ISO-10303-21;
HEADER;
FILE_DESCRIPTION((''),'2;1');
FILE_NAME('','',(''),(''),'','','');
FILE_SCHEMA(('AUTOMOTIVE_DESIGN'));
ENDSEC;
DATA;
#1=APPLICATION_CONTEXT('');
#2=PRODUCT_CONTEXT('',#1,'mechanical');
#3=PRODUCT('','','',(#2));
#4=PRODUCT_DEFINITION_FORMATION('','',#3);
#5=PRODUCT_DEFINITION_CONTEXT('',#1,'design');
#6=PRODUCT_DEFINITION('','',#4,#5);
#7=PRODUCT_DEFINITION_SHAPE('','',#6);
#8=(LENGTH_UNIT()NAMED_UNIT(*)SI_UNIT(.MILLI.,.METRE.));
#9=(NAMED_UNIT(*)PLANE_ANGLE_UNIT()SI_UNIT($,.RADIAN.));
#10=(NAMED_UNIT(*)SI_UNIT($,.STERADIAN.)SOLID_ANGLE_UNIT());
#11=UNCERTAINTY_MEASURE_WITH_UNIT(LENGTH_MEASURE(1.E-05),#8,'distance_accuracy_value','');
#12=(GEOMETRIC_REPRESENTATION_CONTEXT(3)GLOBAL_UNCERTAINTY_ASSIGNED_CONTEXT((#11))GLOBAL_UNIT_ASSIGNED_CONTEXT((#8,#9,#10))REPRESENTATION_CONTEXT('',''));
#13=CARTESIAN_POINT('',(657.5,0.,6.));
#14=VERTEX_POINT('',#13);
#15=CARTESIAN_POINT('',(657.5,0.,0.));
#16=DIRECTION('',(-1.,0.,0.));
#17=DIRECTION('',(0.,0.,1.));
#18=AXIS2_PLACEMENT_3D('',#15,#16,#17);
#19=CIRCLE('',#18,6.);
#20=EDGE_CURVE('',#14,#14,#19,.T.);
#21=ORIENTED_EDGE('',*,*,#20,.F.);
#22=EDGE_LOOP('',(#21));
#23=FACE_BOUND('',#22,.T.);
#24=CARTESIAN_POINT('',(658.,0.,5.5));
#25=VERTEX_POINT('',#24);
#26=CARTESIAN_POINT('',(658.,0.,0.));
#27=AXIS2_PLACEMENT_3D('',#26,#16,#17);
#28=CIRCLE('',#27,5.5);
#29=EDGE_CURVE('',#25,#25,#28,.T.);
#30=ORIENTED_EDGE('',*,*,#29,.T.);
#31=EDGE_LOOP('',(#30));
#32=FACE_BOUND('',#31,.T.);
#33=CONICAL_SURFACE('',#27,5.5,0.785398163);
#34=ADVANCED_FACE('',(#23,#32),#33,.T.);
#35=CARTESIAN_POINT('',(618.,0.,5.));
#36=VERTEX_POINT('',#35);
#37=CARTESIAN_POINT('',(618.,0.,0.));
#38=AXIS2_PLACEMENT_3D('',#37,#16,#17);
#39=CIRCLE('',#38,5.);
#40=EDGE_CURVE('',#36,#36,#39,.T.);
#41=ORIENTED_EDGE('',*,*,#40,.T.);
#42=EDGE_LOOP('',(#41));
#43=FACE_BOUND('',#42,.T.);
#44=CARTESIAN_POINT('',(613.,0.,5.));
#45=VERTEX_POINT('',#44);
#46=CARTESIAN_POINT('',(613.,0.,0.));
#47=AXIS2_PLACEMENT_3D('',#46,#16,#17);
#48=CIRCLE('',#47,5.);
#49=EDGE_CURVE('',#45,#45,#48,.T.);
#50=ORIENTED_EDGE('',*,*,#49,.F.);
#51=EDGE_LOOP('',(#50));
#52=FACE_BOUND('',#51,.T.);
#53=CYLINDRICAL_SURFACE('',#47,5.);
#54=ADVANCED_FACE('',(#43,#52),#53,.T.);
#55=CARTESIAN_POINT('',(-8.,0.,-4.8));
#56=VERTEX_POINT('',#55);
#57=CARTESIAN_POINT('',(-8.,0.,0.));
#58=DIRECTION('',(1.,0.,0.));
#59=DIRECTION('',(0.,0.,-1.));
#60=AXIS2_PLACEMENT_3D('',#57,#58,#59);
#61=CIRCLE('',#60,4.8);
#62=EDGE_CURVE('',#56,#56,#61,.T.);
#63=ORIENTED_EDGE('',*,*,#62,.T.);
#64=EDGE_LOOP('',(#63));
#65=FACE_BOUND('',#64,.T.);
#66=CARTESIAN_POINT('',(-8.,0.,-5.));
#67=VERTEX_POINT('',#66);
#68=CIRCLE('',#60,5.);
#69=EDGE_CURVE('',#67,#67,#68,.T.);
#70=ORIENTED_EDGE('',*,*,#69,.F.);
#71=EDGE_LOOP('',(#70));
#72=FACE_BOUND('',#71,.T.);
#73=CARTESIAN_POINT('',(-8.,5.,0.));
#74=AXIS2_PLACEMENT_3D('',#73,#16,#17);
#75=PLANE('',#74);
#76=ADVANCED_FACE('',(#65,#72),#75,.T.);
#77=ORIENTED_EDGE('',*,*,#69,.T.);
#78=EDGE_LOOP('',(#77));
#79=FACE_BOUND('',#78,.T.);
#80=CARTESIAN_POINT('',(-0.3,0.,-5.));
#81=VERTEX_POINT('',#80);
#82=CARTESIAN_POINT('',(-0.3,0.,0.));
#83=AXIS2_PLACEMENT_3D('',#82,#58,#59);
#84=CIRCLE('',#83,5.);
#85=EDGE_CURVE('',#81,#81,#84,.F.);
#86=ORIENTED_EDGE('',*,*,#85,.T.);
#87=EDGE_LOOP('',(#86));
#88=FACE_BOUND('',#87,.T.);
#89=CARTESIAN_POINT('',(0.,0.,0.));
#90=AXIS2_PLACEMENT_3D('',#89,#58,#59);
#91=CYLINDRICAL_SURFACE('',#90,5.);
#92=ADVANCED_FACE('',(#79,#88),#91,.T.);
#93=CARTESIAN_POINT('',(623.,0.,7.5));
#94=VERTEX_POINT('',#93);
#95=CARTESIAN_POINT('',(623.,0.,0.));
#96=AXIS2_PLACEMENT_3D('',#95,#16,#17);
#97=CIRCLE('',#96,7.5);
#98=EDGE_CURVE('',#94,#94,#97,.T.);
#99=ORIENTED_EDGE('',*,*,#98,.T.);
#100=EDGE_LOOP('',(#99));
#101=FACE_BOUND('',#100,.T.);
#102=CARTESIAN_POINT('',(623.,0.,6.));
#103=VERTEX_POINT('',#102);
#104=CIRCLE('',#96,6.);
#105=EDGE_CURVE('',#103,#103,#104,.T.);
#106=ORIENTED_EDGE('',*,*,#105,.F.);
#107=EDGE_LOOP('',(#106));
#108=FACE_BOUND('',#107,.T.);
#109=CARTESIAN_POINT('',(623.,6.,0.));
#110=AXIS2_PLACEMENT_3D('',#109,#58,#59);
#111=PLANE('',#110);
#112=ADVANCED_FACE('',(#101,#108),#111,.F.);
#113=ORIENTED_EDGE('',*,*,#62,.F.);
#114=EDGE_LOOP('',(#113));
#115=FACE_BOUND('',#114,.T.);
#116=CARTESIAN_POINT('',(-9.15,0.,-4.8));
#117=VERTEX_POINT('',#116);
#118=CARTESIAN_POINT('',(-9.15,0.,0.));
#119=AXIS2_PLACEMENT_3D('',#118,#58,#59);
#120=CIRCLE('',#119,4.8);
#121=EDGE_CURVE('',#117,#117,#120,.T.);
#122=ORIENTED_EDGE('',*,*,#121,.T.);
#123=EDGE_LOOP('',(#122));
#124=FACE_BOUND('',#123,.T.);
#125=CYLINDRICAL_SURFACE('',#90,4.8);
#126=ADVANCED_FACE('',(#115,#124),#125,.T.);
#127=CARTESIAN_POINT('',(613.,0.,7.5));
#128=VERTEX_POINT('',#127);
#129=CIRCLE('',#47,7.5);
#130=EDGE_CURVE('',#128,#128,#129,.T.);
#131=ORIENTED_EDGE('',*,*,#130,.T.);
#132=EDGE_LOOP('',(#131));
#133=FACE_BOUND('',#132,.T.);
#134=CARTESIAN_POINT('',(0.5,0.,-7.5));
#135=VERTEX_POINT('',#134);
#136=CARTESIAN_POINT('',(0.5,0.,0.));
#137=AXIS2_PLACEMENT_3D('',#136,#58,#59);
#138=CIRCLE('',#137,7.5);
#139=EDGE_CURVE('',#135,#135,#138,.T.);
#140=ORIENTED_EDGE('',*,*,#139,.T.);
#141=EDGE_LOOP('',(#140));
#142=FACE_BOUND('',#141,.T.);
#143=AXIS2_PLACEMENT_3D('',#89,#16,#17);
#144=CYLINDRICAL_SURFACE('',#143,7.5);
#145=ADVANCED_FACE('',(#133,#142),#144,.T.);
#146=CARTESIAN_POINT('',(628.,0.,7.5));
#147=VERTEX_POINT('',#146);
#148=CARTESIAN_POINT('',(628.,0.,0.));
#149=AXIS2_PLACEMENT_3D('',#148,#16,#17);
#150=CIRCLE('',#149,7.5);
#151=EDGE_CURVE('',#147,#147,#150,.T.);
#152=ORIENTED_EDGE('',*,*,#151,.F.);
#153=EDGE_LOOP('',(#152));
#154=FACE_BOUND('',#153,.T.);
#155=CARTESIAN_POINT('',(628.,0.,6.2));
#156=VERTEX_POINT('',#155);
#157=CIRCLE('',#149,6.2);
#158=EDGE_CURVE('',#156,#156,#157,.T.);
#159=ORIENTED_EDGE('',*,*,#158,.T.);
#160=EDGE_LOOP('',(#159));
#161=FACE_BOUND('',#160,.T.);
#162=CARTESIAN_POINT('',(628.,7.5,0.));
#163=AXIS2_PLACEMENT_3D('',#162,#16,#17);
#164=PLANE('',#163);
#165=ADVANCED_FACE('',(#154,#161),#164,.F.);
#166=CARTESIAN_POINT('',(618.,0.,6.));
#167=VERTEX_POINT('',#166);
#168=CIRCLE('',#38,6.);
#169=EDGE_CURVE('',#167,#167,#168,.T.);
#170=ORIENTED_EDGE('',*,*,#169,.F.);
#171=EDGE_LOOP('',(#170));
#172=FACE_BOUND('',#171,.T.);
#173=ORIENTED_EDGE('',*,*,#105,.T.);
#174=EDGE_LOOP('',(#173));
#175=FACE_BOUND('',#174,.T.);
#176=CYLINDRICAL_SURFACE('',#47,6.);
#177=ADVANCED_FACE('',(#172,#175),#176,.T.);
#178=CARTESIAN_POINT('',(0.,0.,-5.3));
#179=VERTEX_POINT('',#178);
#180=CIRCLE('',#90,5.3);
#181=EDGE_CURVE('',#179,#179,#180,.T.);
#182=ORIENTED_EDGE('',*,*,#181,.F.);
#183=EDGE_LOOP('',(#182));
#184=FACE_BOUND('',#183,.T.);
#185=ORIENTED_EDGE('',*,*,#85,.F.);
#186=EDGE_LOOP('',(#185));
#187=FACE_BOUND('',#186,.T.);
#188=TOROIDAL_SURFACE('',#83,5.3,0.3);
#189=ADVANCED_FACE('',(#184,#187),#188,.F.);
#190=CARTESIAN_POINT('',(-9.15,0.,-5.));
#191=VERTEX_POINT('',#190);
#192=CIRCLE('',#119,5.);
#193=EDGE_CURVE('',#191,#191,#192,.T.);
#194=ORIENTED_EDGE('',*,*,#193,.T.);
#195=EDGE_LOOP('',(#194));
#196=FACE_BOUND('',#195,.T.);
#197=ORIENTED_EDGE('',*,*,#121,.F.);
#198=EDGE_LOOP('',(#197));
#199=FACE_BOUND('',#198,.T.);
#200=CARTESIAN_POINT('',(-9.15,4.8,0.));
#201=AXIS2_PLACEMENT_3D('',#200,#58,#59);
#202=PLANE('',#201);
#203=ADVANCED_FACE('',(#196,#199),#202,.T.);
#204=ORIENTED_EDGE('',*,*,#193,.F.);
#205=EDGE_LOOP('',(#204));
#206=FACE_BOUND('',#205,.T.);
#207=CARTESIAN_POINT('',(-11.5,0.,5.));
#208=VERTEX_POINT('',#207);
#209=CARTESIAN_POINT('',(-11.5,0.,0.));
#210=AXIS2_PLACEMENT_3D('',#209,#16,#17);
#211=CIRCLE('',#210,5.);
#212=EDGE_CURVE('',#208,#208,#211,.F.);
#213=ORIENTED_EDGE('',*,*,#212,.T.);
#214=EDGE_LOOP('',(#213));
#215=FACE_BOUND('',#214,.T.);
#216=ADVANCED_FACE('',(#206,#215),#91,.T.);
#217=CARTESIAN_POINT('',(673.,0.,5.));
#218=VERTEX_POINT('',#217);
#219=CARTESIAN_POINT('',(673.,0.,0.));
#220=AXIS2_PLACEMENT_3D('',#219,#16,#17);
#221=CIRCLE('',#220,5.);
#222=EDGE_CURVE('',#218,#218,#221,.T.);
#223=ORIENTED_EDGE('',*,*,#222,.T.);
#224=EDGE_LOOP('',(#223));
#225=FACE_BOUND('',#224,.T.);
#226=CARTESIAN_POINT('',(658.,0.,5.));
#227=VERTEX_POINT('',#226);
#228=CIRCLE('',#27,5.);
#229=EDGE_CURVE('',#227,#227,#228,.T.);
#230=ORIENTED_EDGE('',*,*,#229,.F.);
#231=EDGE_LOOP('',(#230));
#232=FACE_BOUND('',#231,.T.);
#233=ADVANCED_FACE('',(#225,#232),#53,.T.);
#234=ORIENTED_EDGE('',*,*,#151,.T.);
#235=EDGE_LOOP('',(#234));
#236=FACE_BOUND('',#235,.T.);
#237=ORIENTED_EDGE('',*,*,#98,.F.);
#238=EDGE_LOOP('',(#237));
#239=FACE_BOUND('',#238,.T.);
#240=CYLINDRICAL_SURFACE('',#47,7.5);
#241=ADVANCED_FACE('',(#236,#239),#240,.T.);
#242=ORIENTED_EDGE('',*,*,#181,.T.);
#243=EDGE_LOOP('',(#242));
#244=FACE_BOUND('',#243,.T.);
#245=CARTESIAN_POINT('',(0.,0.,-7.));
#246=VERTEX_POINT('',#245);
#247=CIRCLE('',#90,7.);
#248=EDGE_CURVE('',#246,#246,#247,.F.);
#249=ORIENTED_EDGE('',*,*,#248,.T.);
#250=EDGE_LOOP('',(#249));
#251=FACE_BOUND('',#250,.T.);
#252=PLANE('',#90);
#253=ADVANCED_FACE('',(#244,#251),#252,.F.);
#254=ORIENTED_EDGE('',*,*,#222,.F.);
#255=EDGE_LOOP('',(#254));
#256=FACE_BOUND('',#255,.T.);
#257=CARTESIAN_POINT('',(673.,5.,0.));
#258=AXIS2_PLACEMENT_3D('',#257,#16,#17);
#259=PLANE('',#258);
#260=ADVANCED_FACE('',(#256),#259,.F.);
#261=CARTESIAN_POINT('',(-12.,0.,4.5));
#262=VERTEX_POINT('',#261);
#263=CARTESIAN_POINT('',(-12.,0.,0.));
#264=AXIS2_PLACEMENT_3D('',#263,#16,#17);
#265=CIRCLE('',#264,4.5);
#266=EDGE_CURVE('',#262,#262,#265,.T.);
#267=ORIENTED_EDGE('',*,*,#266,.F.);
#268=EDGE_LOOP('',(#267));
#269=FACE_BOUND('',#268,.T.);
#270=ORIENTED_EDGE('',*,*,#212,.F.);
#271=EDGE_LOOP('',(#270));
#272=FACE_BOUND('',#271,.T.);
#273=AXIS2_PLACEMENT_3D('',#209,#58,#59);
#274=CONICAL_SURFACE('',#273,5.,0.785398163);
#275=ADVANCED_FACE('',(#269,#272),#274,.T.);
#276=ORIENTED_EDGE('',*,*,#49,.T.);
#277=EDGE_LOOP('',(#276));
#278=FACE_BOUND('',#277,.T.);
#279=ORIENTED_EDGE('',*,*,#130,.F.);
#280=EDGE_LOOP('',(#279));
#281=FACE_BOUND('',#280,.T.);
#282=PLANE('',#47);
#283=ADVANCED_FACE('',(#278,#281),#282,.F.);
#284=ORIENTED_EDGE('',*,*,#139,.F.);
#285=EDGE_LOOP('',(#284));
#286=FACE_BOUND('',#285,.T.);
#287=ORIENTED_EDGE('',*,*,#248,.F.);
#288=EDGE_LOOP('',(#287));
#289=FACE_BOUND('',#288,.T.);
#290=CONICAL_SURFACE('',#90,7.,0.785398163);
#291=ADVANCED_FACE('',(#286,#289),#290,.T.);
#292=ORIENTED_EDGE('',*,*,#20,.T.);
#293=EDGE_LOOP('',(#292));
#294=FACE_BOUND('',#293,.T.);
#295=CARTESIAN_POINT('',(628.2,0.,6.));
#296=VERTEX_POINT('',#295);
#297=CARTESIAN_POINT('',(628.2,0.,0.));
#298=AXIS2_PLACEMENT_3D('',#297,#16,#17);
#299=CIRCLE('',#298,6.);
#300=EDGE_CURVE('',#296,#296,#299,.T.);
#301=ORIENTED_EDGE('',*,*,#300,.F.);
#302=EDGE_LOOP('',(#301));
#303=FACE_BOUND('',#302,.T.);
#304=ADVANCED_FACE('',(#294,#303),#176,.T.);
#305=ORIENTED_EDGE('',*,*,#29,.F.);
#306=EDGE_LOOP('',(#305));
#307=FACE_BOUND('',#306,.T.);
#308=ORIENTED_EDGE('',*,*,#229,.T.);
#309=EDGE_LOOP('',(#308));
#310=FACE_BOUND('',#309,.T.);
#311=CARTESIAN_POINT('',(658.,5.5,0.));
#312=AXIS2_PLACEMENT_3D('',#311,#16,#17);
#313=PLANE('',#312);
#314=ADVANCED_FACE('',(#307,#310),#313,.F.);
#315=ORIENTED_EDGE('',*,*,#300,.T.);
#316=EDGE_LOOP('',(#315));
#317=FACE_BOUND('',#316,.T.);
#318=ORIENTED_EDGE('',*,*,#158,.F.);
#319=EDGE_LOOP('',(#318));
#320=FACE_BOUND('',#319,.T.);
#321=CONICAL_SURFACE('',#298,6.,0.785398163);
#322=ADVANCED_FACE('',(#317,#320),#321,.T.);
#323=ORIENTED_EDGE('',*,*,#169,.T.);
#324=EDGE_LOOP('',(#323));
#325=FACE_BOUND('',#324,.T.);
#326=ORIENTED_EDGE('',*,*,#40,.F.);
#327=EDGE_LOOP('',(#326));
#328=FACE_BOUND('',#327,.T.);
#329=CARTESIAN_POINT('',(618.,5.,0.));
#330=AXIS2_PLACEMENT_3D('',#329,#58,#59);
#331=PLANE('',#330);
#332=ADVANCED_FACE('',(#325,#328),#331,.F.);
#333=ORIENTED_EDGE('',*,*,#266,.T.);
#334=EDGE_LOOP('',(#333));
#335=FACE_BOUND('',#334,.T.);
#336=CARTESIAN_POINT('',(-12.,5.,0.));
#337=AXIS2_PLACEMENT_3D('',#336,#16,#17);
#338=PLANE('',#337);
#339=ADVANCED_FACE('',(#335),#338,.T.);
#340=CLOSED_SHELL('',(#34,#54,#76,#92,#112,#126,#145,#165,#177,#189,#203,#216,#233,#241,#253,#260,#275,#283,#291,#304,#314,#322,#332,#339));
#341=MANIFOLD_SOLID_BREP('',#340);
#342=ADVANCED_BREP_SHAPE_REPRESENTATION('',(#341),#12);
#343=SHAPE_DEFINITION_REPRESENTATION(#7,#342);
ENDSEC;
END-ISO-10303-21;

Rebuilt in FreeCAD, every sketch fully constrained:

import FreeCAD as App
import Part
import Sketcher
from FreeCAD import Vector
Q = App.Units.Quantity


def edges_at(feature, points):
    """Names of the edges that pass closest to the given points."""
    edges = feature.Shape.Edges
    near = lambda p: min(range(len(edges)), key=lambda i: edges[i].distToShape(Part.Vertex(*p))[0])
    return sorted({f"Edge{near(p) + 1}" for p in points})


def add_polygon(sketch, points):
    """Adds a closed chain of lines whose ends are joined by coincident constraints."""
    first, n = sketch.GeometryCount, len(points)
    for a, b in zip(points, points[1:] + points[:1]):
        sketch.addGeometry(Part.LineSegment(App.Vector(*a, 0), App.Vector(*b, 0)), False)
    for i in range(n):
        sketch.addConstraint(Sketcher.Constraint("Coincident", first + i, 2, first + (i + 1) % n, 1))

doc = App.newDocument("Part")
params = doc.addObject("Spreadsheet::Sheet", "Params")
for row, (alias, value) in enumerate([
    ("sketch1_width", "613 mm"),
    ("sketch1_height", "7.5 mm"),
    ("revolution_angle", "360 deg"),
    ("sketch2_width", "5 mm"),
    ("sketch2_width2", "60 mm"),
    ("sketch2_width3", "15 mm"),
    ("sketch2_height", "1 mm"),
    ("sketch2_width4", "29.3 mm"),
    ("revolution2_angle", "360 deg"),
    ("sketch3_width", "8 mm"),
    ("sketch3_width2", "12 mm"),
    ("sketch3_height", "5 mm"),
    ("sketch3_height2", "0.2 mm"),
    ("sketch3_width3", "1.15 mm"),
    ("revolution3_angle", "360 deg"),
    ("fillet_radius", "0.3 mm"),
    ("chamfer_size", "0.5 mm"),
], start=1):
    params.set(f"A{row}", alias)
    params.set(f"B{row}", "=" + value)
    params.setAlias(f"B{row}", alias)

body = doc.addObject("PartDesign::Body", "Body")

# Sketch on XY plane
sketch1 = body.newObject("Sketcher::SketchObject", "Sketch")
sketch1.AttachmentSupport = (doc.getObject("XY_Plane"), [""])
sketch1.MapMode = "FlatFace"
add_polygon(sketch1, [(0, 7.5), (0, 0), (613, 0), (613, 7.5)])  # lines 0-3
sketch1.addConstraint([
    Sketcher.Constraint("Vertical", 0),
    Sketcher.Constraint("Horizontal", 1),
    Sketcher.Constraint("Vertical", 2),
    Sketcher.Constraint("Horizontal", 3),
    Sketcher.Constraint("Coincident", 0, 2, -1, 1),
    Sketcher.Constraint("DistanceX", 1, 1, 1, 2, Q("613 mm")),
    Sketcher.Constraint("DistanceY", 0, 2, 0, 1, Q("7.5 mm")),
])
sketch1.setExpression("Constraints[9]", "Params.sketch1_width")
sketch1.setExpression("Constraints[10]", "Params.sketch1_height")
revolution = body.newObject("PartDesign::Revolution", "Revolution")
revolution.Profile = sketch1
revolution.ReferenceAxis = (sketch1, ["H_Axis"])
revolution.setExpression("Angle", "Params.revolution_angle")

# Sketch on XY plane
sketch2 = body.newObject("Sketcher::SketchObject", "Sketch001")
sketch2.AttachmentSupport = (doc.getObject("XY_Plane"), [""])
sketch2.MapMode = "FlatFace"
add_polygon(sketch2, [(618, 5), (613, 5), (613, 0), (673, 0), (673, 5), (658, 5), (658, 5.5), (657.5, 6), (628.2, 6), (628, 6.2), (628, 7.5), (623, 7.5), (623, 6), (618, 6)])  # lines 0-13
sketch2.addConstraint([
    Sketcher.Constraint("Horizontal", 0),
    Sketcher.Constraint("Vertical", 1),
    Sketcher.Constraint("Horizontal", 2),
    Sketcher.Constraint("Vertical", 3),
    Sketcher.Constraint("Horizontal", 4),
    Sketcher.Constraint("Vertical", 5),
    Sketcher.Constraint("Horizontal", 7),
    Sketcher.Constraint("Vertical", 9),
    Sketcher.Constraint("Horizontal", 10),
    Sketcher.Constraint("Vertical", 11),
    Sketcher.Constraint("Horizontal", 12),
    Sketcher.Constraint("Vertical", 13),
    Sketcher.Constraint("PointOnObject", 1, 2, -1),
    Sketcher.Constraint("Parallel", 6, 8),
    Sketcher.Constraint("Horizontal", 0, 2, 3, 2),
    Sketcher.Constraint("Horizontal", 7, 2, 11, 2),
    Sketcher.Constraint("Equal", 0, 10),
    Sketcher.Constraint("Equal", 10, 12),
    Sketcher.Constraint("Equal", 12, 1),
    Sketcher.Constraint("DistanceX", 0, 2, 0, 1, Q("5 mm")),
    Sketcher.Constraint("DistanceX", 2, 1, 2, 2, Q("60 mm")),
    Sketcher.Constraint("DistanceX", 4, 2, 4, 1, Q("15 mm")),
    Sketcher.Constraint("DistanceY", 13, 2, 13, 1, Q("1 mm")),
    Sketcher.Constraint("Angle", 6, Q("135 deg")),
    Sketcher.Constraint("DistanceX", 7, 2, 7, 1, Q("29.3 mm")),
    Sketcher.Constraint("DistanceY", 5, 1, 5, 2, Q("0.5 mm")),
    Sketcher.Constraint("DistanceY", 9, 1, 9, 2, Q("1.3 mm")),
    Sketcher.Constraint("DistanceX", -1, 1, 0, 2, Q("613 mm")),
])
sketch2.setExpression("Constraints[33]", "Params.sketch2_width")
sketch2.setExpression("Constraints[34]", "Params.sketch2_width2")
sketch2.setExpression("Constraints[35]", "Params.sketch2_width3")
sketch2.setExpression("Constraints[36]", "Params.sketch2_height")
sketch2.setExpression("Constraints[38]", "Params.sketch2_width4")
revolution2 = body.newObject("PartDesign::Revolution", "Revolution001")
revolution2.Profile = sketch2
revolution2.ReferenceAxis = (sketch2, ["H_Axis"])
revolution2.setExpression("Angle", "Params.revolution2_angle")

# Sketch on XY plane
sketch3 = body.newObject("Sketcher::SketchObject", "Sketch002")
sketch3.AttachmentSupport = (doc.getObject("XY_Plane"), [""])
sketch3.MapMode = "FlatFace"
add_polygon(sketch3, [(0, 5), (-8, 5), (-8, 4.8), (-9.15, 4.8), (-9.15, 5), (-12, 5), (-12, 0), (0, 0)])  # lines 0-7
sketch3.addConstraint([
    Sketcher.Constraint("Horizontal", 0),
    Sketcher.Constraint("Vertical", 1),
    Sketcher.Constraint("Horizontal", 2),
    Sketcher.Constraint("Vertical", 3),
    Sketcher.Constraint("Horizontal", 4),
    Sketcher.Constraint("Vertical", 5),
    Sketcher.Constraint("Horizontal", 6),
    Sketcher.Constraint("Vertical", 7),
    Sketcher.Constraint("Coincident", 6, 2, -1, 1),
    Sketcher.Constraint("Horizontal", 0, 2, 3, 2),
    Sketcher.Constraint("DistanceX", 0, 2, 0, 1, Q("8 mm")),
    Sketcher.Constraint("DistanceX", 6, 1, 6, 2, Q("12 mm")),
    Sketcher.Constraint("DistanceY", 5, 2, 5, 1, Q("5 mm")),
    Sketcher.Constraint("DistanceY", 1, 2, 1, 1, Q("0.2 mm")),
    Sketcher.Constraint("DistanceX", 2, 2, 2, 1, Q("1.15 mm")),
])
sketch3.setExpression("Constraints[18]", "Params.sketch3_width")
sketch3.setExpression("Constraints[19]", "Params.sketch3_width2")
sketch3.setExpression("Constraints[20]", "Params.sketch3_height")
sketch3.setExpression("Constraints[21]", "Params.sketch3_height2")
sketch3.setExpression("Constraints[22]", "Params.sketch3_width3")
revolution3 = body.newObject("PartDesign::Revolution", "Revolution002")
revolution3.Profile = sketch3
revolution3.ReferenceAxis = (sketch3, ["H_Axis"])
revolution3.setExpression("Angle", "Params.revolution3_angle")
doc.recompute()

fillet = body.newObject("PartDesign::Fillet", "Fillet")
fillet.Base = (revolution3, edges_at(revolution3, [(0, 0, 5)]))
fillet.setExpression("Radius", "Params.fillet_radius")
doc.recompute()

chamfer = body.newObject("PartDesign::Chamfer", "Chamfer")
chamfer.Base = (fillet, edges_at(fillet, [(-12, 0, 5), (0, 0, -7.5)]))
chamfer.setExpression("Size", "Params.chamfer_size")

doc.recompute()
